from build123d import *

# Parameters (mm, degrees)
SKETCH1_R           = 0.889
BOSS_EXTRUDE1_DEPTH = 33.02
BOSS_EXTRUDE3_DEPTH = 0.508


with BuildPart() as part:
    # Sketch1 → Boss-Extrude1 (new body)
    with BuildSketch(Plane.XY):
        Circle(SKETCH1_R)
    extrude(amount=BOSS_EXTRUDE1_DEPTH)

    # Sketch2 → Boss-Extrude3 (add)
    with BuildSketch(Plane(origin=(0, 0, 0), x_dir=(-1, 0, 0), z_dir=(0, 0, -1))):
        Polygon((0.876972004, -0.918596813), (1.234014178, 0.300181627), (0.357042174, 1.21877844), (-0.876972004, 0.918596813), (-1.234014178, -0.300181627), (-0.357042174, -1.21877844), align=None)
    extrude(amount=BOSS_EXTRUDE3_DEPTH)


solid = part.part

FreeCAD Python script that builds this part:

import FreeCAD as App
import Part
import Sketcher
from FreeCAD import Vector
Q = App.Units.Quantity

doc = App.newDocument("Part")
body = doc.addObject("PartDesign::Body", "Body")

# Sketch on XY plane
sketch1 = body.newObject("Sketcher::SketchObject", "Sketch")
sketch1.AttachmentSupport = (doc.getObject("XY_Plane"), [""])
sketch1.MapMode = "FlatFace"
sketch1.addGeometry(Part.Circle(Vector(0, 0, 0), Vector(0, 0, 1), 0.9), False)
sketch1.addConstraint([
    Sketcher.Constraint("Coincident", 0, 3, -1, 1),
    Sketcher.Constraint("Diameter", 0, Q("0.07 in")),
])
pad1 = body.newObject("PartDesign::Pad", "Pad")
pad1.Profile = sketch1
pad1.Length = Q("1.3 in")

# Sketch on XY plane
sketch2 = body.newObject("Sketcher::SketchObject", "Sketch001")
sketch2.AttachmentSupport = (doc.getObject("XY_Plane"), [""])
sketch2.MapMode = "FlatFace"
sketch2.addGeometry([
    Part.LineSegment(Vector(-0.9, -0.9, 0), Vector(-1.2, 0.3, 0)),  # 0
    Part.LineSegment(Vector(-1.2, 0.3, 0), Vector(-0.4, 1.2, 0)),  # 1
    Part.LineSegment(Vector(-0.4, 1.2, 0), Vector(0.9, 0.9, 0)),  # 2
    Part.LineSegment(Vector(0.9, 0.9, 0), Vector(1.2, -0.3, 0)),  # 3
    Part.LineSegment(Vector(1.2, -0.3, 0), Vector(0.4, -1.2, 0)),  # 4
    Part.LineSegment(Vector(0.4, -1.2, 0), Vector(-0.9, -0.9, 0)),  # 5
], False)
sketch2.addConstraint([
    Sketcher.Constraint("Coincident", 0, 2, 1, 1),
    Sketcher.Constraint("Coincident", 1, 2, 2, 1),
    Sketcher.Constraint("Coincident", 2, 2, 3, 1),
    Sketcher.Constraint("Coincident", 3, 2, 4, 1),
    Sketcher.Constraint("Coincident", 4, 2, 5, 1),
    Sketcher.Constraint("Coincident", 5, 2, 0, 1),
    Sketcher.Constraint("Symmetric", 0, 2, 3, 2, -1, 1),
    Sketcher.Constraint("Symmetric", 1, 2, 4, 2, -1, 1),
    Sketcher.Constraint("Symmetric", 2, 2, 5, 2, -1, 1),
    Sketcher.Constraint("Equal", 0, 1),
    Sketcher.Constraint("Equal", 1, 2),
    Sketcher.Constraint("Distance", 0, Q("0.05 in")),
    Sketcher.Constraint("DistanceY", -1, 1, 0, 2, 0.300182),
    Sketcher.Constraint("DistanceY", -1, 1, 1, 2, 1.218778),
    Sketcher.Constraint("DistanceY", 2, 2, 1, 2, 0.300182),
])
pad2 = body.newObject("PartDesign::Pad", "Pad001")
pad2.Profile = sketch2
pad2.Length = Q("0.02 in")
pad2.Reversed = True

doc.recompute()
